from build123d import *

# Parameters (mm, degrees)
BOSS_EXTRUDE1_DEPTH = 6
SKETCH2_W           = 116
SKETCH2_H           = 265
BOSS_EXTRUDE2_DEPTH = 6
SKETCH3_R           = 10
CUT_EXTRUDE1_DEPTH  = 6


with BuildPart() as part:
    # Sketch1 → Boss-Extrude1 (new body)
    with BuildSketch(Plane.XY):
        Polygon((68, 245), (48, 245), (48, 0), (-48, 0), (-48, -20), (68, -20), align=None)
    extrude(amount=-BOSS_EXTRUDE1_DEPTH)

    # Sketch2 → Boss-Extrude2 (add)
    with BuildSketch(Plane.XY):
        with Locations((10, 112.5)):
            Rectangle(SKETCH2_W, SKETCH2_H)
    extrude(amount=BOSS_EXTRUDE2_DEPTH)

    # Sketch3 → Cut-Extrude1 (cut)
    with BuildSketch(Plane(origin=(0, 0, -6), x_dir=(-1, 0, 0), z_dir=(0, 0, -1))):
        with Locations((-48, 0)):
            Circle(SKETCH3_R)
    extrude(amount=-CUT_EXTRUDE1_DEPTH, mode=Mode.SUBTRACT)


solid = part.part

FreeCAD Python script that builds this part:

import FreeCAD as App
import Part
import Sketcher

V = App.Vector
Q = App.Units.Quantity


def add_polygon(sketch, points):
    """Adds a closed chain of lines whose ends are joined by coincident constraints."""
    first, n = sketch.GeometryCount, len(points)
    for a, b in zip(points, points[1:] + points[:1]):
        sketch.addGeometry(Part.LineSegment(App.Vector(*a, 0), App.Vector(*b, 0)), False)
    for i in range(n):
        sketch.addConstraint(Sketcher.Constraint("Coincident", first + i, 2, first + (i + 1) % n, 1))

doc = App.newDocument("Part")
body = doc.addObject("PartDesign::Body", "Body")

# Sketch on XY plane
sketch1 = body.newObject("Sketcher::SketchObject", "Sketch")
sketch1.AttachmentSupport = (doc.getObject("XY_Plane"), [""])
sketch1.MapMode = "FlatFace"
add_polygon(sketch1, [(68, 245), (48, 245), (48, 0), (-48, 0), (-48, -20), (68, -20)])  # lines 0-5
sketch1.addConstraint(Sketcher.Constraint("Horizontal", 0))
sketch1.addConstraint(Sketcher.Constraint("Vertical", 1))
sketch1.addConstraint(Sketcher.Constraint("Horizontal", 2))
sketch1.addConstraint(Sketcher.Constraint("Vertical", 3))
sketch1.addConstraint(Sketcher.Constraint("Horizontal", 4))
sketch1.addConstraint(Sketcher.Constraint("Vertical", 5))
sketch1.addConstraint(Sketcher.Constraint("Symmetric", 1, 2, 2, 2, -1, 1))
sketch1.addConstraint(Sketcher.Constraint("Equal", 0, 3))
sketch1.addConstraint(Sketcher.Constraint("DistanceX", 0, 2, 0, 1, Q("20 mm")))
sketch1.addConstraint(Sketcher.Constraint("DistanceX", 2, 2, 2, 1, Q("96 mm")))
sketch1.addConstraint(Sketcher.Constraint("DistanceY", 1, 2, 1, 1, Q("245 mm")))
pad1 = body.newObject("PartDesign::Pad", "Pad")
pad1.Profile = sketch1
pad1.Length = 6
pad1.Reversed = True

# Sketch on XY plane
sketch2 = body.newObject("Sketcher::SketchObject", "Sketch001")
sketch2.AttachmentSupport = (doc.getObject("XY_Plane"), [""])
sketch2.MapMode = "FlatFace"
add_polygon(sketch2, [(-48, 245), (-48, -20), (68, -20), (68, 245)])  # lines 0-3
sketch2.addConstraint(Sketcher.Constraint("Vertical", 0))
sketch2.addConstraint(Sketcher.Constraint("Horizontal", 1))
sketch2.addConstraint(Sketcher.Constraint("Vertical", 2))
sketch2.addConstraint(Sketcher.Constraint("Horizontal", 3))
sketch2.addConstraint(Sketcher.Constraint("DistanceX", 1, 1, 1, 2, Q("116 mm")))
sketch2.addConstraint(Sketcher.Constraint("DistanceY", 0, 2, 0, 1, Q("265 mm")))
sketch2.addConstraint(Sketcher.Constraint("DistanceX", 0, 2, -1, 1, Q("48 mm")))
sketch2.addConstraint(Sketcher.Constraint("DistanceY", 0, 2, -1, 1, Q("20 mm")))
pad2 = body.newObject("PartDesign::Pad", "Pad001")
pad2.Profile = sketch2
pad2.Length = 6

# Sketch on XY plane
sketch3 = body.newObject("Sketcher::SketchObject", "Sketch002")
sketch3.AttachmentSupport = (doc.getObject("XY_Plane"), [""])
sketch3.MapMode = "FlatFace"
sketch3.AttachmentOffset = App.Placement(V(0, 0, -6), App.Rotation())
sketch3.addGeometry(Part.Circle(V(48, 0, 0), V(0, 0, 1), 10), False)
sketch3.addConstraint(Sketcher.Constraint("PointOnObject", 0, 3, -1))
sketch3.addConstraint(Sketcher.Constraint("Diameter", 0, Q("20 mm")))
sketch3.addConstraint(Sketcher.Constraint("DistanceX", -1, 1, 0, 3, Q("48 mm")))
pocket1 = body.newObject("PartDesign::Pocket", "Pocket")
pocket1.Profile = sketch3
pocket1.Length = 6
pocket1.Reversed = True

doc.recompute()
